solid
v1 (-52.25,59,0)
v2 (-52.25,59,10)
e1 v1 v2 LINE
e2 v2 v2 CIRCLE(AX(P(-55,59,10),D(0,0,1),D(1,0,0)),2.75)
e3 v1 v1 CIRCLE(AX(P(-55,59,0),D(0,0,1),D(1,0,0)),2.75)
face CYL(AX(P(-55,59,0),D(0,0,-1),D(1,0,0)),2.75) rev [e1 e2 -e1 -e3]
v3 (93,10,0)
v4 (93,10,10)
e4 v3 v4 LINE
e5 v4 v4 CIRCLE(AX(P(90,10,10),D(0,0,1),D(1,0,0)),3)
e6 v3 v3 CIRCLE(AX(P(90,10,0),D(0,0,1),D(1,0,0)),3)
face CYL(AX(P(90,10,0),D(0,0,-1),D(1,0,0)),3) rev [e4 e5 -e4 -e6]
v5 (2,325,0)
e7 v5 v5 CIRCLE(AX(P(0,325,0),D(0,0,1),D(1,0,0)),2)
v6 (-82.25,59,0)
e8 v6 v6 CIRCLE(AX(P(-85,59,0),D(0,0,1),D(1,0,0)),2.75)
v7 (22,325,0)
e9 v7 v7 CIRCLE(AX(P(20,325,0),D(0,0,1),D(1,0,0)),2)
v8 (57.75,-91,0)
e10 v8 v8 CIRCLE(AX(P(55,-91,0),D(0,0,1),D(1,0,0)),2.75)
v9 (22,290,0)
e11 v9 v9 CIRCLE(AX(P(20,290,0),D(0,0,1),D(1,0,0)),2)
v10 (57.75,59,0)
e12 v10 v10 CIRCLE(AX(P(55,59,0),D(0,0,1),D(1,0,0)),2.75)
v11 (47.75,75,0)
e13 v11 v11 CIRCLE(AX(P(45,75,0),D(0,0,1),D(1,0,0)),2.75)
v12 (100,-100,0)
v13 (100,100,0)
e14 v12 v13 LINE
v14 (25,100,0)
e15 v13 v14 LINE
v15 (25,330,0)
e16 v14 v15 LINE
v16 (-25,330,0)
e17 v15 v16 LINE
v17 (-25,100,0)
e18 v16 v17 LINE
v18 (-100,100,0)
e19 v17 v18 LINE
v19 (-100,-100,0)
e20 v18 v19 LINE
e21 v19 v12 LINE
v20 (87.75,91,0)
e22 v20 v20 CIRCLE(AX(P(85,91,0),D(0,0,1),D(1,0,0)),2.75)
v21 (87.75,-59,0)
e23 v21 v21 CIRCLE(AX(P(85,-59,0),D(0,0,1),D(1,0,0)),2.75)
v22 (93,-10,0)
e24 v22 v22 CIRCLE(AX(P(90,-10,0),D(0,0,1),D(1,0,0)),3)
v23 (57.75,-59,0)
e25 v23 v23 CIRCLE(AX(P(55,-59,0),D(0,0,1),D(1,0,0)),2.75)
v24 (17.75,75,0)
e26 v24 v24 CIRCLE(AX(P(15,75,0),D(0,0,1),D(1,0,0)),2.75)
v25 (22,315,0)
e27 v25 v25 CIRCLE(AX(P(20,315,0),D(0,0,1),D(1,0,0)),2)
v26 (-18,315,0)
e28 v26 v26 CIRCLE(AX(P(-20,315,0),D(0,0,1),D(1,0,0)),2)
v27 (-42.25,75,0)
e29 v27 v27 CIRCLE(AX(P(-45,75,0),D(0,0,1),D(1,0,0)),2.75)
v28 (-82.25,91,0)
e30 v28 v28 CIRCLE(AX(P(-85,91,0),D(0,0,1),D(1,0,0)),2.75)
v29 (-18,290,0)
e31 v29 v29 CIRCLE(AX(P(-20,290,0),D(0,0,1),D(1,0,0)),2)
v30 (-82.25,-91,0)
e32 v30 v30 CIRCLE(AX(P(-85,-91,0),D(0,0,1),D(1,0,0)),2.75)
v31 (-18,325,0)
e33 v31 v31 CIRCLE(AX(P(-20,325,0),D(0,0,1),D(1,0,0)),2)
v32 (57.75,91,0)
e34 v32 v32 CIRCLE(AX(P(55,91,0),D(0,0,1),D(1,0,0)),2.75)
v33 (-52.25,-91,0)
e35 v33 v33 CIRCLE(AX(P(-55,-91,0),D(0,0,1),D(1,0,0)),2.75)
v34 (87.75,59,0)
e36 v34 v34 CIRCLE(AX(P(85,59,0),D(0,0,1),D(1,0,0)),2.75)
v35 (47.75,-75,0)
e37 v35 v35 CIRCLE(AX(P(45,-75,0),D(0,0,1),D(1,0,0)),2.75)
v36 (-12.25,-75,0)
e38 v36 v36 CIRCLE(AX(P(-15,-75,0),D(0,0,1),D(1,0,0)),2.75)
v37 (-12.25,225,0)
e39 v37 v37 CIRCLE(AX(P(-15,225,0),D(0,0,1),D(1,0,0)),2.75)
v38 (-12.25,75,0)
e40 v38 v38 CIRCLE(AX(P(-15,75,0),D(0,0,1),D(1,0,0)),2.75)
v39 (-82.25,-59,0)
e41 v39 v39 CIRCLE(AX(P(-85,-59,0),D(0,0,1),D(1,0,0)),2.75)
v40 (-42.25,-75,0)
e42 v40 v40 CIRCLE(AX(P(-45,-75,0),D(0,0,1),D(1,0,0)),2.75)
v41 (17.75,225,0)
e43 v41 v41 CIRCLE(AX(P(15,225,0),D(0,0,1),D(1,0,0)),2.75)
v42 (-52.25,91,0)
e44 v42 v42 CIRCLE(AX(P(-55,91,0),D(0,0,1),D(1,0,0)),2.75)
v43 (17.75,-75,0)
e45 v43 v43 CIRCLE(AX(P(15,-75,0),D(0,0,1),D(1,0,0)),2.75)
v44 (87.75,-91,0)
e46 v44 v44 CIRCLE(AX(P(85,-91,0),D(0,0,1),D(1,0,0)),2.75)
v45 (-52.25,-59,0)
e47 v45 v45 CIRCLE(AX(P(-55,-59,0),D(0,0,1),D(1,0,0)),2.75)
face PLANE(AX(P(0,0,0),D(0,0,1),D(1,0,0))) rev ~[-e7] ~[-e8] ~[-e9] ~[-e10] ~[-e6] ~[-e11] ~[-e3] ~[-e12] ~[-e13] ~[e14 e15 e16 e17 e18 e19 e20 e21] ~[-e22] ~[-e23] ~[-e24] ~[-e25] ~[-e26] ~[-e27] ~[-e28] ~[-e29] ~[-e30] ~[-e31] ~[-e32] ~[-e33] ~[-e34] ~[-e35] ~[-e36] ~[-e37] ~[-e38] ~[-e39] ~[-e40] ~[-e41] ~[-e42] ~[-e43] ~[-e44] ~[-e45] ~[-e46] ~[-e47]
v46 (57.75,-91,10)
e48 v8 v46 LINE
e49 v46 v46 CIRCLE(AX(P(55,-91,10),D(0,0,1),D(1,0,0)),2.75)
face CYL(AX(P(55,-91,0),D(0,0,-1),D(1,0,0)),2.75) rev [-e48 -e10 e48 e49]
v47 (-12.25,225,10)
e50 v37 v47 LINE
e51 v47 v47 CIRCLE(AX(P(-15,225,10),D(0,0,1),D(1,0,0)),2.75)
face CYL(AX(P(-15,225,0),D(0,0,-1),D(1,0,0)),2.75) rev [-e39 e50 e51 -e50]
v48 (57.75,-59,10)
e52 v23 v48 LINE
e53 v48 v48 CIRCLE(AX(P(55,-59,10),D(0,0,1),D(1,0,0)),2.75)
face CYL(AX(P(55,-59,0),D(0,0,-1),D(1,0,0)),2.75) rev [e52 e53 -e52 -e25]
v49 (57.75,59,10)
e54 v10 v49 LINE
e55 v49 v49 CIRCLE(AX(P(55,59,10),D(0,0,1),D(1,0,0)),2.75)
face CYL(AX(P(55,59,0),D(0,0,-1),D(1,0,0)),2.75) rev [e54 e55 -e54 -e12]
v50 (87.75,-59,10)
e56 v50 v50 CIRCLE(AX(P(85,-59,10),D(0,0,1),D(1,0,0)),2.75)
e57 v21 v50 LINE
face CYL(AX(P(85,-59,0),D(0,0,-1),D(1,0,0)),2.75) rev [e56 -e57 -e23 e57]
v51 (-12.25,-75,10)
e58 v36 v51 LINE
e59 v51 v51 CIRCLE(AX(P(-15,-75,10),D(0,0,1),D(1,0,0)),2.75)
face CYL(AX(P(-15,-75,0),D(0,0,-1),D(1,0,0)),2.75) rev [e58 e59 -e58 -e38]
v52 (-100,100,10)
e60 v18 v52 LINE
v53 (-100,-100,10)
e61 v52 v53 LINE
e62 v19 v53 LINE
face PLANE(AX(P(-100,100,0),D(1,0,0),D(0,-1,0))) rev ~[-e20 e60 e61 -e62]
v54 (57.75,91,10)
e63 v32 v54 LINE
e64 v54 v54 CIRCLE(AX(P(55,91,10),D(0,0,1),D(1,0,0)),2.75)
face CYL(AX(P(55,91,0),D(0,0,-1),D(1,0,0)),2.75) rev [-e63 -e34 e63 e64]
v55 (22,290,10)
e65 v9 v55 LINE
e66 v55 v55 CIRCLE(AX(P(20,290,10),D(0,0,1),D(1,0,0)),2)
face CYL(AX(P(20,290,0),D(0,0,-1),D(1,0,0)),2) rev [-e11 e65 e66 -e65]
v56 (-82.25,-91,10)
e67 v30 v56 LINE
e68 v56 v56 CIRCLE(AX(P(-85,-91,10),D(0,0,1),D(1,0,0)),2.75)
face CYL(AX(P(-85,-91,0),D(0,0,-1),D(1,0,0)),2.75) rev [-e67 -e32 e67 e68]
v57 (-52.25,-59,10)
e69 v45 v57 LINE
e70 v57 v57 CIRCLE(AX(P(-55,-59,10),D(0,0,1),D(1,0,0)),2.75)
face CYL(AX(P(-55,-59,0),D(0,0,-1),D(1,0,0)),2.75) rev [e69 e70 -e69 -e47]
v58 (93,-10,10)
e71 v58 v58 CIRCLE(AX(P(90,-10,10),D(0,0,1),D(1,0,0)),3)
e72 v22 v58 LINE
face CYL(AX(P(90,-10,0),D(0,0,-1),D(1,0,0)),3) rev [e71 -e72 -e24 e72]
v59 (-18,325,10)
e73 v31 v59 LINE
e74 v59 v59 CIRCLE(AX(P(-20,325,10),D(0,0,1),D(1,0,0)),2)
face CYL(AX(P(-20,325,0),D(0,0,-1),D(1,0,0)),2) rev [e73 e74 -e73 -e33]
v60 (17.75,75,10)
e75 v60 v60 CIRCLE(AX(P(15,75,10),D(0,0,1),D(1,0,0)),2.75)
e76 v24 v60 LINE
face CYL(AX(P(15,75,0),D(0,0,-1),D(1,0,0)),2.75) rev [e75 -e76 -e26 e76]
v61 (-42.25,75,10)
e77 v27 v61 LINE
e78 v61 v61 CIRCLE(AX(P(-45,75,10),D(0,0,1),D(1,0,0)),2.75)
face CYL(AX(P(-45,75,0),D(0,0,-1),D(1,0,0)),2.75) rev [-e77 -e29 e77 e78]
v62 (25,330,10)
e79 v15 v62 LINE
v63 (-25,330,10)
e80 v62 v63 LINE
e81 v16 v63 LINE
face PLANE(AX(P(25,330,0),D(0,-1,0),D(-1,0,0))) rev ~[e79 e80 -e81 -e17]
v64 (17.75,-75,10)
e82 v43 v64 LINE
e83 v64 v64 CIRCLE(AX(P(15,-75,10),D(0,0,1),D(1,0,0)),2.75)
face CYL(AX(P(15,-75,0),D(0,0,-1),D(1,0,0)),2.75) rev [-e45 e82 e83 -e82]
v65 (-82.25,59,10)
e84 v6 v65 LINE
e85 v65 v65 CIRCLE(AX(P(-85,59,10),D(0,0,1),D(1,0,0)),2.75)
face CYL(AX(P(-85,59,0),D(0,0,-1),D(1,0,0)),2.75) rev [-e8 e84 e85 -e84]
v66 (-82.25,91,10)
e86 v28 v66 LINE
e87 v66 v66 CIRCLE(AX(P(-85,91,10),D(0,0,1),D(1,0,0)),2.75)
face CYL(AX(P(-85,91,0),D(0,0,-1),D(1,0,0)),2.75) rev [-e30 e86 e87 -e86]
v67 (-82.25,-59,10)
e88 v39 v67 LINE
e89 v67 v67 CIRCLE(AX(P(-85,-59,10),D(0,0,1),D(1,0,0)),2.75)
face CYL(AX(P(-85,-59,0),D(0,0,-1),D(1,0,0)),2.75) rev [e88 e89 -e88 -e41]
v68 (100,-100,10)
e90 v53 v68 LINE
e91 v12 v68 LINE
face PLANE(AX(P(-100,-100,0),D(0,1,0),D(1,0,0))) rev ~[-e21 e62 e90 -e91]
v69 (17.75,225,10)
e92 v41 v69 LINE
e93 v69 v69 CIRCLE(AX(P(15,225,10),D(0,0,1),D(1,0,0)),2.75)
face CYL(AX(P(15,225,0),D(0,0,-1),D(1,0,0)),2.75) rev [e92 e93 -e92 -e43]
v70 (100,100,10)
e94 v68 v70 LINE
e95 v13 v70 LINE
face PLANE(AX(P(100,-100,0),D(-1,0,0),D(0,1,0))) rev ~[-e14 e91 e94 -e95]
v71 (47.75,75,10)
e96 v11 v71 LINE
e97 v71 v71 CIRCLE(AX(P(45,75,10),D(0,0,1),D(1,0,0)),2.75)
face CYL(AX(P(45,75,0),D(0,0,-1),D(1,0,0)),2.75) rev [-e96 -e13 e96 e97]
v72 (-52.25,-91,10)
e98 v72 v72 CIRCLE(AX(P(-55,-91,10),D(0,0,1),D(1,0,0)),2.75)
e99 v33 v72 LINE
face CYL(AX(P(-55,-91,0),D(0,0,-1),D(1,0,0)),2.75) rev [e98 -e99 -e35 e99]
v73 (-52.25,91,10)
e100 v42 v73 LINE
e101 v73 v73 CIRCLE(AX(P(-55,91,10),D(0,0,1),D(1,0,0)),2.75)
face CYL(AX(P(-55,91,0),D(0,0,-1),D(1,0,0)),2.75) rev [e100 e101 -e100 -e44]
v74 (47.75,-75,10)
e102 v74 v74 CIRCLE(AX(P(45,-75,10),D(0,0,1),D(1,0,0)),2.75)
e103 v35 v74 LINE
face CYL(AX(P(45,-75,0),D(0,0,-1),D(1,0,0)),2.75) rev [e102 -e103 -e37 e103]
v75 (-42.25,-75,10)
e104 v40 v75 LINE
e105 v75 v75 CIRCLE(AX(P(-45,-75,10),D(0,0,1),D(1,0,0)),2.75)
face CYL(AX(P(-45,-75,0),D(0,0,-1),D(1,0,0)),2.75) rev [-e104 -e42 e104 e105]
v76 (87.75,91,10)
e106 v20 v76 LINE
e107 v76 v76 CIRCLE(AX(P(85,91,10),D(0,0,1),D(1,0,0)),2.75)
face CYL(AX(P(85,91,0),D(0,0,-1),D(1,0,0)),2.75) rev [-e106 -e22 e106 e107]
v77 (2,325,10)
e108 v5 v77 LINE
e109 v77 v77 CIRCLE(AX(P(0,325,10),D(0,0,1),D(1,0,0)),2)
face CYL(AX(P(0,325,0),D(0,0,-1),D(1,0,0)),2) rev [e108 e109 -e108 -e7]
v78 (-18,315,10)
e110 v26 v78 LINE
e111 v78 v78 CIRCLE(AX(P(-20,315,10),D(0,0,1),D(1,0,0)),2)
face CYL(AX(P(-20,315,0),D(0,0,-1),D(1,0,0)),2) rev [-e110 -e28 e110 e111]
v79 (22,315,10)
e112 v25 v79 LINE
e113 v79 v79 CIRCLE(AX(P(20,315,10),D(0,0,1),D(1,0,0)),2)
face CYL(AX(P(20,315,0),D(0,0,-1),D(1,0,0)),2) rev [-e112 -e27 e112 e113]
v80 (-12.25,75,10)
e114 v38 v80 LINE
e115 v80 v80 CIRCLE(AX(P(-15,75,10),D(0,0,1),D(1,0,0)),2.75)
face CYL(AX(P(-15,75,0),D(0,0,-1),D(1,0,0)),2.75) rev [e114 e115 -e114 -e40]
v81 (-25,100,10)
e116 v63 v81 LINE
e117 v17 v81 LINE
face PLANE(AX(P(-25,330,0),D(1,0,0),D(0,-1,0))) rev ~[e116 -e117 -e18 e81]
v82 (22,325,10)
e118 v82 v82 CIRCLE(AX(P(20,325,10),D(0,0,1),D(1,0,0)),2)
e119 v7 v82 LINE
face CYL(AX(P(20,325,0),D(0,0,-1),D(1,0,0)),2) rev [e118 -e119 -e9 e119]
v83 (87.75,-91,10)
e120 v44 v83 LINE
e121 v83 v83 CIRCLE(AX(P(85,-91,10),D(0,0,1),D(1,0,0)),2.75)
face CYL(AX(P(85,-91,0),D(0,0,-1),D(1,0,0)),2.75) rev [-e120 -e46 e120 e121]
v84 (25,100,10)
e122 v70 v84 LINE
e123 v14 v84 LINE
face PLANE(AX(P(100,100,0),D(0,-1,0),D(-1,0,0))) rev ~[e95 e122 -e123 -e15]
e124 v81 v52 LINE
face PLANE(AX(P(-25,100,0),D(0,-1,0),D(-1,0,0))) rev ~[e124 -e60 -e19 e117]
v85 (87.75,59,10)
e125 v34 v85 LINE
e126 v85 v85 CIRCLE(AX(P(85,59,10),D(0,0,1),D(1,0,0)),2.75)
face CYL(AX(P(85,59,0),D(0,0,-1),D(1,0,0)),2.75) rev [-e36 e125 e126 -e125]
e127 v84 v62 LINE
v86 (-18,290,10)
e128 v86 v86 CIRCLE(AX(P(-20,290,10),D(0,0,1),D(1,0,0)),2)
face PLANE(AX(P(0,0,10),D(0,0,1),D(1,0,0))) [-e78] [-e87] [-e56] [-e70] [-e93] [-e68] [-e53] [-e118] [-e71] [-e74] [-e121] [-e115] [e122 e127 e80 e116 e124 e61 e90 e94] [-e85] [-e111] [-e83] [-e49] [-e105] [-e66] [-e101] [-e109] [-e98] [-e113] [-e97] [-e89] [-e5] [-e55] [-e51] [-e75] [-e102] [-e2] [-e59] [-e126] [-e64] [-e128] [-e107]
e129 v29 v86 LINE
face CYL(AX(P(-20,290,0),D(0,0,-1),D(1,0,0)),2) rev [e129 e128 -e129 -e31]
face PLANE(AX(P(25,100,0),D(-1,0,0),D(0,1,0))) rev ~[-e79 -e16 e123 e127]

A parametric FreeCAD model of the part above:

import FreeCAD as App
import Part
import Sketcher

doc = App.newDocument("Part")
params = doc.addObject("Spreadsheet::Sheet", "Params")
for row, (alias, value) in enumerate([
    ("sketch1_diameter", "4 mm"),
    ("sketch1_diameter2", "5.5 mm"),
    ("sketch1_width", "75 mm"),
    ("sketch1_width2", "50 mm"),
    ("sketch1_height", "230 mm"),
    ("pad1_length", "10 mm"),
], start=1):
    params.set(f"A{row}", alias)
    params.set(f"B{row}", "=" + value)
    params.setAlias(f"B{row}", alias)

body = doc.addObject("PartDesign::Body", "Body")

# Sketch on XY plane
sketch1 = doc.addObject("Sketcher::SketchObject", "Sketch")
body.addObject(sketch1)
sketch1.AttachmentSupport = (doc.XY_Plane, [""])
sketch1.MapMode = "FlatFace"
sketch1.addGeometry([
    Part.LineSegment(App.Vector(100, -100, 0), App.Vector(100, 100, 0)),  # 0
    Part.LineSegment(App.Vector(100, 100, 0), App.Vector(25, 100, 0)),  # 1
    Part.LineSegment(App.Vector(25, 100, 0), App.Vector(25, 330, 0)),  # 2
    Part.LineSegment(App.Vector(25, 330, 0), App.Vector(-25, 330, 0)),  # 3
    Part.LineSegment(App.Vector(-25, 330, 0), App.Vector(-25, 100, 0)),  # 4
    Part.LineSegment(App.Vector(-25, 100, 0), App.Vector(-100, 100, 0)),  # 5
    Part.LineSegment(App.Vector(-100, 100, 0), App.Vector(-100, -100, 0)),  # 6
    Part.LineSegment(App.Vector(-100, -100, 0), App.Vector(100, -100, 0)),  # 7
    Part.Circle(App.Vector(-85, -91, 0), App.Vector(0, 0, 1), 2.8),  # 8
    Part.Circle(App.Vector(-85, -59, 0), App.Vector(0, 0, 1), 2.8),  # 9
    Part.Circle(App.Vector(-55, -91, 0), App.Vector(0, 0, 1), 2.8),  # 10
    Part.Circle(App.Vector(-55, -59, 0), App.Vector(0, 0, 1), 2.8),  # 11
    Part.Circle(App.Vector(-45, -75, 0), App.Vector(0, 0, 1), 2.8),  # 12
    Part.Circle(App.Vector(-15, -75, 0), App.Vector(0, 0, 1), 2.8),  # 13
    Part.Circle(App.Vector(-85, 59, 0), App.Vector(0, 0, 1), 2.8),  # 14
    Part.Circle(App.Vector(-55, 59, 0), App.Vector(0, 0, 1), 2.8),  # 15
    Part.Circle(App.Vector(-85, 91, 0), App.Vector(0, 0, 1), 2.8),  # 16
    Part.Circle(App.Vector(-55, 91, 0), App.Vector(0, 0, 1), 2.8),  # 17
    Part.Circle(App.Vector(-45, 75, 0), App.Vector(0, 0, 1), 2.8),  # 18
    Part.Circle(App.Vector(-15, 75, 0), App.Vector(0, 0, 1), 2.8),  # 19
    Part.Circle(App.Vector(15, -75, 0), App.Vector(0, 0, 1), 2.8),  # 20
    Part.Circle(App.Vector(45, -75, 0), App.Vector(0, 0, 1), 2.8),  # 21
    Part.Circle(App.Vector(55, -91, 0), App.Vector(0, 0, 1), 2.8),  # 22
    Part.Circle(App.Vector(55, -59, 0), App.Vector(0, 0, 1), 2.8),  # 23
    Part.Circle(App.Vector(85, -91, 0), App.Vector(0, 0, 1), 2.8),  # 24
    Part.Circle(App.Vector(85, -59, 0), App.Vector(0, 0, 1), 2.8),  # 25
    Part.Circle(App.Vector(90, -10, 0), App.Vector(0, 0, 1), 3),  # 26
    Part.Circle(App.Vector(15, 75, 0), App.Vector(0, 0, 1), 2.8),  # 27
    Part.Circle(App.Vector(45, 75, 0), App.Vector(0, 0, 1), 2.8),  # 28
    Part.Circle(App.Vector(55, 59, 0), App.Vector(0, 0, 1), 2.8),  # 29
    Part.Circle(App.Vector(90, 10, 0), App.Vector(0, 0, 1), 3),  # 30
    Part.Circle(App.Vector(85, 59, 0), App.Vector(0, 0, 1), 2.8),  # 31
    Part.Circle(App.Vector(55, 91, 0), App.Vector(0, 0, 1), 2.8),  # 32
    Part.Circle(App.Vector(85, 91, 0), App.Vector(0, 0, 1), 2.8),  # 33
    Part.Circle(App.Vector(20, 325, 0), App.Vector(0, 0, 1), 2),  # 34
    Part.Circle(App.Vector(-15, 225, 0), App.Vector(0, 0, 1), 2.8),  # 35
    Part.Circle(App.Vector(-20, 290, 0), App.Vector(0, 0, 1), 2),  # 36
    Part.Circle(App.Vector(-20, 315, 0), App.Vector(0, 0, 1), 2),  # 37
    Part.Circle(App.Vector(-20, 325, 0), App.Vector(0, 0, 1), 2),  # 38
    Part.Circle(App.Vector(15, 225, 0), App.Vector(0, 0, 1), 2.8),  # 39
    Part.Circle(App.Vector(20, 290, 0), App.Vector(0, 0, 1), 2),  # 40
    Part.Circle(App.Vector(0, 325, 0), App.Vector(0, 0, 1), 2),  # 41
    Part.Circle(App.Vector(20, 315, 0), App.Vector(0, 0, 1), 2),  # 42
], False)
sketch1.addConstraint([
    Sketcher.Constraint("Coincident", 0, 2, 1, 1),
    Sketcher.Constraint("Coincident", 1, 2, 2, 1),
    Sketcher.Constraint("Coincident", 2, 2, 3, 1),
    Sketcher.Constraint("Coincident", 3, 2, 4, 1),
    Sketcher.Constraint("Coincident", 4, 2, 5, 1),
    Sketcher.Constraint("Coincident", 5, 2, 6, 1),
    Sketcher.Constraint("Coincident", 6, 2, 7, 1),
    Sketcher.Constraint("Coincident", 7, 2, 0, 1),
    Sketcher.Constraint("Vertical", 0),
    Sketcher.Constraint("Horizontal", 1),
    Sketcher.Constraint("Vertical", 2),
    Sketcher.Constraint("Horizontal", 3),
    Sketcher.Constraint("Vertical", 4),
    Sketcher.Constraint("Horizontal", 5),
    Sketcher.Constraint("Vertical", 6),
    Sketcher.Constraint("Horizontal", 7),
    Sketcher.Constraint("Equal", 8, 9),
    Sketcher.Constraint("Equal", 9, 10),
    Sketcher.Constraint("Equal", 10, 11),
    Sketcher.Constraint("Equal", 11, 12),
    Sketcher.Constraint("Equal", 12, 13),
    Sketcher.Constraint("Equal", 13, 14),
    Sketcher.Constraint("Equal", 14, 15),
    Sketcher.Constraint("Equal", 15, 16),
    Sketcher.Constraint("Equal", 16, 17),
    Sketcher.Constraint("Equal", 17, 18),
    Sketcher.Constraint("Equal", 18, 19),
    Sketcher.Constraint("Equal", 19, 20),
    Sketcher.Constraint("Equal", 20, 21),
    Sketcher.Constraint("Equal", 21, 22),
    Sketcher.Constraint("Equal", 22, 23),
    Sketcher.Constraint("Equal", 23, 24),
    Sketcher.Constraint("Equal", 24, 25),
    Sketcher.Constraint("Equal", 25, 27),
    Sketcher.Constraint("Equal", 27, 28),
    Sketcher.Constraint("Equal", 28, 29),
    Sketcher.Constraint("Equal", 26, 30),
    Sketcher.Constraint("Equal", 29, 31),
    Sketcher.Constraint("Equal", 31, 32),
    Sketcher.Constraint("Equal", 32, 33),
    Sketcher.Constraint("Equal", 33, 35),
    Sketcher.Constraint("Equal", 34, 36),
    Sketcher.Constraint("Equal", 36, 37),
    Sketcher.Constraint("Equal", 37, 38),
    Sketcher.Constraint("Equal", 35, 39),
    Sketcher.Constraint("Equal", 38, 40),
    Sketcher.Constraint("Equal", 40, 41),
    Sketcher.Constraint("Equal", 41, 42),
    Sketcher.Constraint("Symmetric", 19, 3, 20, 3, -1, 1),
    Sketcher.Constraint("Symmetric", 18, 3, 21, 3, -1, 1),
    Sketcher.Constraint("Symmetric", 17, 3, 22, 3, -1, 1),
    Sketcher.Constraint("Symmetric", 15, 3, 23, 3, -1, 1),
    Sketcher.Constraint("Symmetric", 16, 3, 24, 3, -1, 1),
    Sketcher.Constraint("Symmetric", 14, 3, 25, 3, -1, 1),
    Sketcher.Constraint("Symmetric", 13, 3, 27, 3, -1, 1),
    Sketcher.Constraint("Symmetric", 12, 3, 28, 3, -1, 1),
    Sketcher.Constraint("Symmetric", 11, 3, 29, 3, -1, 1),
    Sketcher.Constraint("Symmetric", 9, 3, 31, 3, -1, 1),
    Sketcher.Constraint("Symmetric", 10, 3, 32, 3, -1, 1),
    Sketcher.Constraint("Symmetric", 8, 3, 33, 3, -1, 1),
    Sketcher.Constraint("Symmetric", 0, 2, 6, 2, -1, 1),
    Sketcher.Constraint("Symmetric", 13, 3, 20, 3, -2),
    Sketcher.Constraint("Symmetric", 12, 3, 21, 3, -2),
    Sketcher.Constraint("Symmetric", 10, 3, 22, 3, -2),
    Sketcher.Constraint("Symmetric", 11, 3, 23, 3, -2),
    Sketcher.Constraint("Symmetric", 8, 3, 24, 3, -2),
    Sketcher.Constraint("Symmetric", 9, 3, 25, 3, -2),
    Sketcher.Constraint("Symmetric", 34, 3, 38, 3, -2),
    Sketcher.Constraint("Symmetric", 35, 3, 39, 3, -2),
    Sketcher.Constraint("Symmetric", 36, 3, 40, 3, -2),
    Sketcher.Constraint("Symmetric", 37, 3, 42, 3, -2),
    Sketcher.Constraint("Symmetric", 1, 2, 4, 2, -2),
    Sketcher.Constraint("Symmetric", 26, 3, 30, 3, -1),
    Sketcher.Constraint("PointOnObject", 41, 3, -2),
    Sketcher.Constraint("Horizontal", 8, 3, 10, 3),
    Sketcher.Constraint("Horizontal", 9, 3, 11, 3),
    Sketcher.Constraint("Horizontal", 12, 3, 13, 3),
    Sketcher.Constraint("Horizontal", 38, 3, 41, 3),
    Sketcher.Constraint("Vertical", 8, 3, 9, 3),
    Sketcher.Constraint("Vertical", 10, 3, 11, 3),
    Sketcher.Constraint("Vertical", 19, 3, 35, 3),
    Sketcher.Constraint("Vertical", 36, 3, 37, 3),
    Sketcher.Constraint("Vertical", 37, 3, 38, 3),
    Sketcher.Constraint("Equal", 7, 0),
    Sketcher.Constraint("Diameter", 34, 4.0),
    Sketcher.Constraint("Diameter", 8, 5.5),
    Sketcher.Constraint("DistanceX", 1, 2, 1, 1, 75.0),
    Sketcher.Constraint("DistanceX", 3, 2, 3, 1, 50.0),
    Sketcher.Constraint("DistanceY", 2, 1, 2, 2, 230.0),
    Sketcher.Constraint("Diameter", 26, 6.0),
    Sketcher.Constraint("DistanceY", 9, 3, -1, 1, 59.0),
    Sketcher.Constraint("DistanceY", 12, 3, -1, 1, 75.0),
    Sketcher.Constraint("DistanceX", 13, 3, -1, 1, 15.0),
    Sketcher.Constraint("DistanceY", 26, 3, -1, 1, 10.0),
    Sketcher.Constraint("DistanceX", -1, 1, 34, 3, 20.0),
    Sketcher.Constraint("DistanceY", 8, 3, 9, 3, 32.0),
    Sketcher.Constraint("DistanceX", 8, 3, 10, 3, 30.0),
    Sketcher.Constraint("DistanceX", 10, 3, 12, 3, 10.0),
    Sketcher.Constraint("DistanceX", 12, 3, 13, 3, 30.0),
    Sketcher.Constraint("DistanceX", 25, 3, 26, 3, 5.0),
    Sketcher.Constraint("DistanceY", 35, 3, 34, 3, 100.0),
    Sketcher.Constraint("DistanceY", 19, 3, 35, 3, 150.0),
    Sketcher.Constraint("DistanceY", 37, 3, 34, 3, 10.0),
    Sketcher.Constraint("DistanceY", 40, 3, 2, 2, 40.0),
])
sketch1.setExpression("Constraints[84]", "Params.sketch1_diameter")
sketch1.setExpression("Constraints[85]", "Params.sketch1_diameter2")
sketch1.setExpression("Constraints[86]", "Params.sketch1_width")
sketch1.setExpression("Constraints[87]", "Params.sketch1_width2")
sketch1.setExpression("Constraints[88]", "Params.sketch1_height")
pad1 = doc.addObject("PartDesign::Pad", "Pad")
body.addObject(pad1)
pad1.Profile = sketch1
pad1.setExpression("Length", "Params.pad1_length")

doc.recompute()
